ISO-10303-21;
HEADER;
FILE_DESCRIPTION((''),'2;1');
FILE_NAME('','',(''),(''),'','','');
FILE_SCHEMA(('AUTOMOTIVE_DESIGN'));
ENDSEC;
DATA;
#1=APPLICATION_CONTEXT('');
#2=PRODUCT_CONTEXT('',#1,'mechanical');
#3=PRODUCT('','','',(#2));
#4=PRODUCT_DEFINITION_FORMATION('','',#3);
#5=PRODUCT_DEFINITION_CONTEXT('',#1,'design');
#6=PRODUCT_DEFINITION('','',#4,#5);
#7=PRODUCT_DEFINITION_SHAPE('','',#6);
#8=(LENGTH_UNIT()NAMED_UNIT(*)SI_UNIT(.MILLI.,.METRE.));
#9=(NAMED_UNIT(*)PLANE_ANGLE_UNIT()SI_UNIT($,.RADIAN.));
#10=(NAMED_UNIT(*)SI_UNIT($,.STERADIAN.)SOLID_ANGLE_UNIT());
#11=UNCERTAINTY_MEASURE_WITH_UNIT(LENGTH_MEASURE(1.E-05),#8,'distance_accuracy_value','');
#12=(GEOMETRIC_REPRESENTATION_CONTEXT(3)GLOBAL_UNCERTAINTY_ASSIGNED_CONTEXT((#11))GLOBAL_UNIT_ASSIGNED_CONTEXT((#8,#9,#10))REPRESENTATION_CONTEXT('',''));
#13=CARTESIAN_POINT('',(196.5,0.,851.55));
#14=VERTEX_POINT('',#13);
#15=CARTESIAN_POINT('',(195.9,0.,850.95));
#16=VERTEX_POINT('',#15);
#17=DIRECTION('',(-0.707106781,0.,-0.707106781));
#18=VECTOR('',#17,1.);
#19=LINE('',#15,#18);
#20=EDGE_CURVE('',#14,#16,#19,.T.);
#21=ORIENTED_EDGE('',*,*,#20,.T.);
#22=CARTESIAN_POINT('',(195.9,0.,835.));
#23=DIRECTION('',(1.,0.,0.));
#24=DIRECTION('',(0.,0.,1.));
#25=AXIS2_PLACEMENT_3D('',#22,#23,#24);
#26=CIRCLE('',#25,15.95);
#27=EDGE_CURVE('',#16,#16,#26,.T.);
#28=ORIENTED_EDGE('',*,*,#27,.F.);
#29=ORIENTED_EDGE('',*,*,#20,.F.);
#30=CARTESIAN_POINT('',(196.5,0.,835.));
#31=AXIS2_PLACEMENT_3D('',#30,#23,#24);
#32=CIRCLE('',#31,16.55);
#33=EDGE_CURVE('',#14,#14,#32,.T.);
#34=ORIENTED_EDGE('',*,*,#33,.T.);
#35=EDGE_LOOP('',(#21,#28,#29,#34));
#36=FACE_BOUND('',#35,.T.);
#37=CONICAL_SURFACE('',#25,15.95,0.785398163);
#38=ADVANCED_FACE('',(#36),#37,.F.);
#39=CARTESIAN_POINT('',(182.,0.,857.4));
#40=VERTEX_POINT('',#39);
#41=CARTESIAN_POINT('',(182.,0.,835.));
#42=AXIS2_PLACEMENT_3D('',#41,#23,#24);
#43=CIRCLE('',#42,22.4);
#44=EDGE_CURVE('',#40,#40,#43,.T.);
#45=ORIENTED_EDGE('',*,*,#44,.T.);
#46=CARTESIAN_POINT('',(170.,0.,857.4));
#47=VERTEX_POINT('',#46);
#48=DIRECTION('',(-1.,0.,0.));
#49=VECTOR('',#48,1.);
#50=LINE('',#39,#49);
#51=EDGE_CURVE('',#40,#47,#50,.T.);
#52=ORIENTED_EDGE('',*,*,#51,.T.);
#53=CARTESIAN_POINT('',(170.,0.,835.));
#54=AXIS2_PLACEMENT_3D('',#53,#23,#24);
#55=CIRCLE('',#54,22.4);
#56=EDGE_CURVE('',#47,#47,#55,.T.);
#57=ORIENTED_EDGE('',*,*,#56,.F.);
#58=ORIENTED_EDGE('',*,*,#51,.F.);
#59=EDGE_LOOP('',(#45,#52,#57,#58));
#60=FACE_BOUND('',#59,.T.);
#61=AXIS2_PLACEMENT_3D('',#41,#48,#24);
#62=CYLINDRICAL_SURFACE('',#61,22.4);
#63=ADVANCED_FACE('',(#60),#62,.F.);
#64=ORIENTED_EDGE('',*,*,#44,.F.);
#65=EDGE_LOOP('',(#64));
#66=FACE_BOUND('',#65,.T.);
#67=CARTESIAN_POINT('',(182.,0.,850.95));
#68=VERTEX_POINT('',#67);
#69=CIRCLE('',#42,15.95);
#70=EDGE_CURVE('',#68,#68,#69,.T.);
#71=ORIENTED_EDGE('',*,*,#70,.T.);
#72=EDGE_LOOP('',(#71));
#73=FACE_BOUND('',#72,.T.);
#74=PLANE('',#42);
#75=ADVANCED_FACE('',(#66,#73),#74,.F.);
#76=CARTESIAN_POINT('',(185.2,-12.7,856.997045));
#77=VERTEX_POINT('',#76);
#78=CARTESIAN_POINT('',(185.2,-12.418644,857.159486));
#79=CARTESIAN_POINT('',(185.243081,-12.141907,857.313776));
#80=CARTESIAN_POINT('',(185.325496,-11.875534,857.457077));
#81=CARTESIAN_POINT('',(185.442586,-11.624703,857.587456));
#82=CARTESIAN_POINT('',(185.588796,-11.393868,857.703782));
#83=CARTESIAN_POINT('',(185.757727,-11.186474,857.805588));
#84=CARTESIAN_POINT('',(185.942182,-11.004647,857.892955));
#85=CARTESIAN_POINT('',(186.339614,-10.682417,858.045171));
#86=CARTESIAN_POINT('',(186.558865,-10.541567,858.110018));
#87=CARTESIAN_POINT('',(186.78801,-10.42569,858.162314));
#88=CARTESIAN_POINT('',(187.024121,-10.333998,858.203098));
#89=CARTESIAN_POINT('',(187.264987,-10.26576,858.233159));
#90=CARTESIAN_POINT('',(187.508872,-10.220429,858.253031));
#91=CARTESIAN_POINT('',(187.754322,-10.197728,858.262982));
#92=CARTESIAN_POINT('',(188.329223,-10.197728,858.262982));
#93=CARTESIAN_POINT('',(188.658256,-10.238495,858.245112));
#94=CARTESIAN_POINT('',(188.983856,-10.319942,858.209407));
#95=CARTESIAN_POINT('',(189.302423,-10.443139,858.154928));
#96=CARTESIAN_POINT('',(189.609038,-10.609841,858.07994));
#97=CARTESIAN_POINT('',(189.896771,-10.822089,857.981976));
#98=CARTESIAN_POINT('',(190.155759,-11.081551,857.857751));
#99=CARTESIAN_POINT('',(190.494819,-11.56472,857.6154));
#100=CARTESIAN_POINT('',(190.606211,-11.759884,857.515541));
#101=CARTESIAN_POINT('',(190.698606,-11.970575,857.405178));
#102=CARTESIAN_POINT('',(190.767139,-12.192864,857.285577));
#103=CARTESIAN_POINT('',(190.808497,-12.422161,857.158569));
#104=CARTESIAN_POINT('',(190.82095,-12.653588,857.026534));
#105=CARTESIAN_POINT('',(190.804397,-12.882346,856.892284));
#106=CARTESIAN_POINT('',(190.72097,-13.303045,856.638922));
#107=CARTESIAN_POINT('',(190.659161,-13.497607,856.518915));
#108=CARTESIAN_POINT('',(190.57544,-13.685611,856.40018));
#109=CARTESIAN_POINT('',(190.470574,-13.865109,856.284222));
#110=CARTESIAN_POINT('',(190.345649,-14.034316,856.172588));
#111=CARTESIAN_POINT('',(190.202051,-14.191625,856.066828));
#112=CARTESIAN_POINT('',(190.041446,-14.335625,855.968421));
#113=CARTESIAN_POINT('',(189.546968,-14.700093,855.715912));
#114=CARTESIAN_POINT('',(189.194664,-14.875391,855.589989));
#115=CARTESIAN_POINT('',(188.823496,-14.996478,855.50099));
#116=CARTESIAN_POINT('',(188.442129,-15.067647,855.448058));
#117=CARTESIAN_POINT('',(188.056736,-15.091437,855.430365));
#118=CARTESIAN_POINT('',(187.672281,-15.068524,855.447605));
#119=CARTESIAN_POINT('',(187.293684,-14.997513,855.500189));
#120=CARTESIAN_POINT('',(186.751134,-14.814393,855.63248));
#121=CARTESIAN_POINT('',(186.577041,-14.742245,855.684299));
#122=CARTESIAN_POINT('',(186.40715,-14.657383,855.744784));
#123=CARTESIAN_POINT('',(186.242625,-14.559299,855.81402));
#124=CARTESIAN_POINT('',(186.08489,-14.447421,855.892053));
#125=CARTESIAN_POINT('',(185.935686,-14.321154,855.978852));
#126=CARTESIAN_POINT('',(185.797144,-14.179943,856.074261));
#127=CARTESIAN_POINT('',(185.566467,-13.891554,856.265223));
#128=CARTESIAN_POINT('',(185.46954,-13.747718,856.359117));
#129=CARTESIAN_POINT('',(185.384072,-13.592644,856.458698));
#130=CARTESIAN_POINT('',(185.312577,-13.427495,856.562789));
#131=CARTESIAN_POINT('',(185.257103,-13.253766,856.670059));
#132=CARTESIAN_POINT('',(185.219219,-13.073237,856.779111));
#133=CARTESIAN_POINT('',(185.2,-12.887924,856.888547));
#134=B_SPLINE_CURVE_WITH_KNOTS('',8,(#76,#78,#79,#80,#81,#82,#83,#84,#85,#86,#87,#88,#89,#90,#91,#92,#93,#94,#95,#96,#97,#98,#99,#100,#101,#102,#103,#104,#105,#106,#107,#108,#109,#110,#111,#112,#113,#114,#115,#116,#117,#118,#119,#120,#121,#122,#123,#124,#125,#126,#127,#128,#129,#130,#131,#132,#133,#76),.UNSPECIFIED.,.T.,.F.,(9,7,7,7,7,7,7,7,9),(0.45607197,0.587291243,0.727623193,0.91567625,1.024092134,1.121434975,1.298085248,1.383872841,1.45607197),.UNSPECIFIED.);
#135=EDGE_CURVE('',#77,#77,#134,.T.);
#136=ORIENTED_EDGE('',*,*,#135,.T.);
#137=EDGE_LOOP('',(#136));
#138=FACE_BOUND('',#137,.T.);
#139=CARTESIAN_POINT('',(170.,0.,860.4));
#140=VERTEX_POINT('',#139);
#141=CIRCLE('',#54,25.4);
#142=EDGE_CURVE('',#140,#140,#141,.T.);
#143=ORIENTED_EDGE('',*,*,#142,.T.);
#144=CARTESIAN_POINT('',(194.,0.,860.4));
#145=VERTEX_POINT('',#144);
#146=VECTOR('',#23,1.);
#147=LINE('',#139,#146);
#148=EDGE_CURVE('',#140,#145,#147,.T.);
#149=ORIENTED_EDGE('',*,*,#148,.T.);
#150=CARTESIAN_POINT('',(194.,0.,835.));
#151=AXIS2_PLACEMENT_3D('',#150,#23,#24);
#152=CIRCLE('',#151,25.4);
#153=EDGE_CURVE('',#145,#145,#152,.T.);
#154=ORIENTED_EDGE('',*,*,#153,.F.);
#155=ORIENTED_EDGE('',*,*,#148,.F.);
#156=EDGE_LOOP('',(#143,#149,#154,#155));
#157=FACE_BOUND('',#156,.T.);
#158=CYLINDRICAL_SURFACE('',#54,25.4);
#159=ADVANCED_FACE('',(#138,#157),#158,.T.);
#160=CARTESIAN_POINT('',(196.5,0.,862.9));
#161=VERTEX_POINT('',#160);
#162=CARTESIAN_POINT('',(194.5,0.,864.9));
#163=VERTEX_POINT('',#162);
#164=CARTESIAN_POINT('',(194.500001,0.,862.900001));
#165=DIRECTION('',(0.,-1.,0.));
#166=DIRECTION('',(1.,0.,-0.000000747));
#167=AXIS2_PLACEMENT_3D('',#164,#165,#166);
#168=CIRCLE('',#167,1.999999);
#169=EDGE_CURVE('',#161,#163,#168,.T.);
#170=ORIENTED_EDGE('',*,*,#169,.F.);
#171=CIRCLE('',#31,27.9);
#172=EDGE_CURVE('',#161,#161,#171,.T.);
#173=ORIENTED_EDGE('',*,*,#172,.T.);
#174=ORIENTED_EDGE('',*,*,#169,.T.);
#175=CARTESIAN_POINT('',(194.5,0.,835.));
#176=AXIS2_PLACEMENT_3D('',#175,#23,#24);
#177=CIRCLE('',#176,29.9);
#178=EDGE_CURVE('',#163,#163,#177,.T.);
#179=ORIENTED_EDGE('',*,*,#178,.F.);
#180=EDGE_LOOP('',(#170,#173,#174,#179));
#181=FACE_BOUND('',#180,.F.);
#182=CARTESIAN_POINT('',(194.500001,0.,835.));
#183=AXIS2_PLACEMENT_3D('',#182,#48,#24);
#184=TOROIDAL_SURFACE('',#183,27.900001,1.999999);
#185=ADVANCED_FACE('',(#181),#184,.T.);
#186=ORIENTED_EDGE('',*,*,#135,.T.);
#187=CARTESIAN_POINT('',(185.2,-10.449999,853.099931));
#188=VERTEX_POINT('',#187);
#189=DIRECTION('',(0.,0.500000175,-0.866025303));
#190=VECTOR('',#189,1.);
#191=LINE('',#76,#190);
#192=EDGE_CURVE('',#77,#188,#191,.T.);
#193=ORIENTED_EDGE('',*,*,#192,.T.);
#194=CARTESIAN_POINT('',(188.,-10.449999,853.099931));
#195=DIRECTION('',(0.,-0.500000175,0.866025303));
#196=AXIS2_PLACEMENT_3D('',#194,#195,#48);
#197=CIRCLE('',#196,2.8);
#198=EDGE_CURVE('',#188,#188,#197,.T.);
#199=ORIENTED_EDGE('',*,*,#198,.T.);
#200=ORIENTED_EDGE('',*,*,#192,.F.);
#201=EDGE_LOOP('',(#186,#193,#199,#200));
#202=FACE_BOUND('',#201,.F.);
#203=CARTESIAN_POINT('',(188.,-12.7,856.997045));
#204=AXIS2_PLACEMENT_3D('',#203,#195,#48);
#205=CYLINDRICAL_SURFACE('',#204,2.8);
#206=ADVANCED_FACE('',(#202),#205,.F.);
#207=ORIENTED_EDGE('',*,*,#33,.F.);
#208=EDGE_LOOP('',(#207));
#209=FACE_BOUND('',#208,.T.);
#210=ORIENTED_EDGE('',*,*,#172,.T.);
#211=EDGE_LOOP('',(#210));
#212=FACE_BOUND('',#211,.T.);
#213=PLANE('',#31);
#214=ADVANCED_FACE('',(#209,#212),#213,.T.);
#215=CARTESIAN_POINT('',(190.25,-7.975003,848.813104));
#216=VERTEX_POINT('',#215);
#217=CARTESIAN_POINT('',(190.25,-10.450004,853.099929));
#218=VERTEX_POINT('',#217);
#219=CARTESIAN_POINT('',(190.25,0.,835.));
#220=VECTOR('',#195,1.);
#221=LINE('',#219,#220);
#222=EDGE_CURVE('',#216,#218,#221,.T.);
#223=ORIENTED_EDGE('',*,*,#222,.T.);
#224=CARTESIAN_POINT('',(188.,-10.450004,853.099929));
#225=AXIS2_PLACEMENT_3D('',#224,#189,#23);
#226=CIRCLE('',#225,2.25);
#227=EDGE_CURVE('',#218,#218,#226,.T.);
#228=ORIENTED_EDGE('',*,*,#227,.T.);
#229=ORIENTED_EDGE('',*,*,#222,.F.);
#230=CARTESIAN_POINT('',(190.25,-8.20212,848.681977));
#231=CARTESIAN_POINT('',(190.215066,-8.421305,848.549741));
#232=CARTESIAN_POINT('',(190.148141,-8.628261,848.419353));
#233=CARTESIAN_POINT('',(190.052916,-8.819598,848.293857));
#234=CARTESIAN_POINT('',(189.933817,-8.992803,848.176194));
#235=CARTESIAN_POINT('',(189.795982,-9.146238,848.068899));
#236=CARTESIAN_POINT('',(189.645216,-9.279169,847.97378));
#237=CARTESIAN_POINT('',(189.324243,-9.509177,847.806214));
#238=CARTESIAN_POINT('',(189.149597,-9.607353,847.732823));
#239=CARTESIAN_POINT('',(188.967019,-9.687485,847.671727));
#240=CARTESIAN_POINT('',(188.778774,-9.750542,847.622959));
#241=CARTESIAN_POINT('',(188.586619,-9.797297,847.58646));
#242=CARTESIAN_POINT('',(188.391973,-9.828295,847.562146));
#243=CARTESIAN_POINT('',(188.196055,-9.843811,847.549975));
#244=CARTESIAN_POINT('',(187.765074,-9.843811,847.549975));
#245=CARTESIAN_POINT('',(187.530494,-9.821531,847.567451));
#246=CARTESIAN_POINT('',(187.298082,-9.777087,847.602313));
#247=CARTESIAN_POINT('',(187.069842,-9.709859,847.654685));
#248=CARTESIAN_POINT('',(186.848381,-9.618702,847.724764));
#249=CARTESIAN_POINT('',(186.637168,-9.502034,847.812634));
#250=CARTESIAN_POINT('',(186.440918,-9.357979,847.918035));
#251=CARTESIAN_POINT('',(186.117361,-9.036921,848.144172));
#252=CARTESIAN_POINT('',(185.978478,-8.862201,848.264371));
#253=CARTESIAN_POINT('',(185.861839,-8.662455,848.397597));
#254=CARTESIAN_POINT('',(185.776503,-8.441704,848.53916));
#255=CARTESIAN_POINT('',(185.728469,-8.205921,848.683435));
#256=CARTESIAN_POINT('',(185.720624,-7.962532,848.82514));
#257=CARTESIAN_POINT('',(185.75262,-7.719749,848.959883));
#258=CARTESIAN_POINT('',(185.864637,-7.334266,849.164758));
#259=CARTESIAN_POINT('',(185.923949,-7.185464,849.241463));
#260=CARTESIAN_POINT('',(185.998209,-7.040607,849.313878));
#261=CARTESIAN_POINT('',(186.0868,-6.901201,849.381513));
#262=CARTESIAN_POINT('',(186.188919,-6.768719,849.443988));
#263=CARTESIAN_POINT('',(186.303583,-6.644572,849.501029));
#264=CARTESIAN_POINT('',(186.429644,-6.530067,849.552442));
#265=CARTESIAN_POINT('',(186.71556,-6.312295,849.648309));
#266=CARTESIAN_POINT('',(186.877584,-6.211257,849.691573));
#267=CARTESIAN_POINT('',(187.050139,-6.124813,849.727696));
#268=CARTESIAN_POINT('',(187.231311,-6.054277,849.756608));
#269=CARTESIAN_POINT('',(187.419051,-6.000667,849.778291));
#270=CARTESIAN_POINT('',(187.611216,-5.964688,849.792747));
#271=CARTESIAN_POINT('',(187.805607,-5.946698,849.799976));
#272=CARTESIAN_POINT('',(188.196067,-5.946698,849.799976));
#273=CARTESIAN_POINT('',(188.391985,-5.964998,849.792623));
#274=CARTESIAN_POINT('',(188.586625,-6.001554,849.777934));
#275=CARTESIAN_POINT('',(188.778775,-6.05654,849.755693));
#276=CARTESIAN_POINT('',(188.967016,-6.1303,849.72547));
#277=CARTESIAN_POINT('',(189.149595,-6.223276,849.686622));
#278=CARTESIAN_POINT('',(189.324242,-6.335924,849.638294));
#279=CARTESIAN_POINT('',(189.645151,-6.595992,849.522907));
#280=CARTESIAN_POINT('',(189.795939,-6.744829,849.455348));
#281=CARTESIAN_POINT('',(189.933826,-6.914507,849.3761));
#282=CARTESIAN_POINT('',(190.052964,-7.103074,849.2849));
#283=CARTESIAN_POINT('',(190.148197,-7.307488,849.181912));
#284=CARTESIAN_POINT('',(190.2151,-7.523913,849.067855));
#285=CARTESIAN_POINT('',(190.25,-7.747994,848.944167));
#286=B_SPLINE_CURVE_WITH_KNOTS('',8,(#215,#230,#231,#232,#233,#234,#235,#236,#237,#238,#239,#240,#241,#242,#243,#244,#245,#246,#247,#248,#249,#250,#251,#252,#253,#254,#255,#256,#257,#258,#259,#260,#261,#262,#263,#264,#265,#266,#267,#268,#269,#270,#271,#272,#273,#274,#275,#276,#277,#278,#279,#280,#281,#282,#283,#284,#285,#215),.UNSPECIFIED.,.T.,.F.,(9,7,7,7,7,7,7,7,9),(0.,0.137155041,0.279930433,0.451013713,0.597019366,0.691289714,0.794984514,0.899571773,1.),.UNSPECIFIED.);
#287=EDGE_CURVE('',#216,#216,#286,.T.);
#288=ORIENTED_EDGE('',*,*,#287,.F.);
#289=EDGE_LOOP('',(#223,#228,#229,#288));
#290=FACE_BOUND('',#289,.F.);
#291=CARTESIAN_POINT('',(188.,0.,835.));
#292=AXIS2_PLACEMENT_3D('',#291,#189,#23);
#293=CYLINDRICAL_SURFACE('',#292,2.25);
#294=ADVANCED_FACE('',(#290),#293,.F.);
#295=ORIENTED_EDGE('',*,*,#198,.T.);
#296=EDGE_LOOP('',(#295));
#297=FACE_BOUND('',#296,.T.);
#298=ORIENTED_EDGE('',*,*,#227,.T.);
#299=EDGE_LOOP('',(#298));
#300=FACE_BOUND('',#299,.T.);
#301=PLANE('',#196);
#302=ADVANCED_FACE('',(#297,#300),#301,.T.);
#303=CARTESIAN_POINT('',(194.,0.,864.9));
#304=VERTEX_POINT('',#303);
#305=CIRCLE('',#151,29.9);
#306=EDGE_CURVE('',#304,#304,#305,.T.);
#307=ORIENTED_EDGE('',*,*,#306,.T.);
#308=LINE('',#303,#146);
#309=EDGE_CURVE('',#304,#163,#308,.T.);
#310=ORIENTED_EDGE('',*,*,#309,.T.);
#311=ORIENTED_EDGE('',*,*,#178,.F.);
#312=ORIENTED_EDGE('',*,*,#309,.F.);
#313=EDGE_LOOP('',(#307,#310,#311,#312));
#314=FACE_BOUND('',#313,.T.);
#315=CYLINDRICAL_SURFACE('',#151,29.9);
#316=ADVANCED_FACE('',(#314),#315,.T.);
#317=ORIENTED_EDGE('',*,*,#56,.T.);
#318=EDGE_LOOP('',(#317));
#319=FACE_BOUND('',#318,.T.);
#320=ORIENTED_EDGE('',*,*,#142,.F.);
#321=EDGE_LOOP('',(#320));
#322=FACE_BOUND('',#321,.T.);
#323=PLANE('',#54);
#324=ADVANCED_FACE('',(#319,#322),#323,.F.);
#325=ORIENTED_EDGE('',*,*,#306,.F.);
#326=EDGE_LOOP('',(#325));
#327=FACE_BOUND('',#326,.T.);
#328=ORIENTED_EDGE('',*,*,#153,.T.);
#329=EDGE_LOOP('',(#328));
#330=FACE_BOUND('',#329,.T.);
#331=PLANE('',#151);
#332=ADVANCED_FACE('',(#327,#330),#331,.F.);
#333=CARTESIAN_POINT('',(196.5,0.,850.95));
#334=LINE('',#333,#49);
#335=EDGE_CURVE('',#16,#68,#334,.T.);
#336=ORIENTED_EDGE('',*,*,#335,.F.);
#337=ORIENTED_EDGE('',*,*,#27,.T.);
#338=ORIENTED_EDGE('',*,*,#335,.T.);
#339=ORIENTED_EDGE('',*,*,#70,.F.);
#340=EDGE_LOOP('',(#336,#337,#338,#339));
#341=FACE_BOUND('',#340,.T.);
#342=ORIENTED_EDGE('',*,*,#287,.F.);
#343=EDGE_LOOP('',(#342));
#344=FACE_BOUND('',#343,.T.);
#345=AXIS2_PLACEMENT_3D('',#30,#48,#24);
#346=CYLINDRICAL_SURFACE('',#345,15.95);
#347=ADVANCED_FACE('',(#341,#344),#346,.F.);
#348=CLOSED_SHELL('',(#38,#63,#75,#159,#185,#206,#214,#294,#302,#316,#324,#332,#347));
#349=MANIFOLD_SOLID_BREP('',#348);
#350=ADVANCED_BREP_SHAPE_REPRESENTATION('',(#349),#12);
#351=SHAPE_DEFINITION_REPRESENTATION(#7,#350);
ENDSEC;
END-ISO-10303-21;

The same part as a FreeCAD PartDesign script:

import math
import FreeCAD as App
import Part
import Sketcher

V = App.Vector
Q = App.Units.Quantity


def edges_at(feature, points):
    """Names of the edges that pass closest to the given points."""
    edges = feature.Shape.Edges
    near = lambda p: min(range(len(edges)), key=lambda i: edges[i].distToShape(Part.Vertex(*p))[0])
    return sorted({f"Edge{near(p) + 1}" for p in points})

doc = App.newDocument("Part")
body = doc.addObject("PartDesign::Body", "Body")

sketch1 = body.newObject("Sketcher::SketchObject", "Sketch")
sketch1.AttachmentSupport = (doc.getObject("XZ_Plane"), [""])
sketch1.MapMode = "FlatFace"
sketch1.addGeometry([
    Part.LineSegment(V(0, 29.9, 0), V(0, 25.4, 0)),
    Part.LineSegment(V(0, 25.4, 0), V(-24, 25.4, 0)),
    Part.LineSegment(V(-24, 25.4, 0), V(-24, 22.4, 0)),
    Part.LineSegment(V(-24, 22.4, 0), V(-12, 22.4, 0)),
    Part.LineSegment(V(-12, 22.4, 0), V(-12, 15.9, 0)),
    Part.LineSegment(V(-12, 15.9, 0), V(2.5, 15.9, 0)),
    Part.LineSegment(V(2.5, 15.9, 0), V(2.5, 27.9, 0)),
    Part.ArcOfCircle(Part.Circle(V(0.5, 27.9, 0), V(0, 0, 1), 2), math.radians(0), math.radians(90)),
    Part.LineSegment(V(0.5, 29.9, 0), V(0, 29.9, 0)),
], False)
sketch1.addConstraint([
    Sketcher.Constraint("Coincident", 0, 2, 1, 1),
    Sketcher.Constraint("Coincident", 1, 2, 2, 1),
    Sketcher.Constraint("Coincident", 2, 2, 3, 1),
    Sketcher.Constraint("Coincident", 3, 2, 4, 1),
    Sketcher.Constraint("Coincident", 4, 2, 5, 1),
    Sketcher.Constraint("Coincident", 5, 2, 6, 1),
    Sketcher.Constraint("Tangent", 6, 2, 7, 1),
    Sketcher.Constraint("Tangent", 7, 2, 8, 1),
    Sketcher.Constraint("Coincident", 8, 2, 0, 1),
    Sketcher.Constraint("Vertical", 0),
    Sketcher.Constraint("Horizontal", 1),
    Sketcher.Constraint("Vertical", 2),
    Sketcher.Constraint("Horizontal", 3),
    Sketcher.Constraint("Vertical", 4),
    Sketcher.Constraint("Horizontal", 5),
    Sketcher.Constraint("Vertical", 6),
    Sketcher.Constraint("Horizontal", 8),
    Sketcher.Constraint("PointOnObject", 0, 2, -2),
    Sketcher.Constraint("Radius", 7, Q("1.999999 mm")),
    Sketcher.Constraint("DistanceX", 1, 2, 1, 1, Q("24 mm")),
    Sketcher.Constraint("DistanceX", 3, 1, 3, 2, Q("12 mm")),
    Sketcher.Constraint("DistanceY", 2, 2, 2, 1, Q("3 mm")),
    Sketcher.Constraint("DistanceX", 5, 1, 5, 2, Q("14.5 mm")),
    Sketcher.Constraint("DistanceY", 0, 2, 0, 1, Q("4.5 mm")),
    Sketcher.Constraint("DistanceY", 4, 2, 4, 1, Q("6.45 mm")),
    Sketcher.Constraint("DistanceY", -1, 1, 7, 3, Q("27.900001 mm")),
])
revolution = body.newObject("PartDesign::Revolution", "Revolution")
revolution.Profile = sketch1
revolution.ReferenceAxis = (sketch1, ["H_Axis"])
revolution.Angle = 360

sketch2 = body.newObject("Sketcher::SketchObject", "Sketch001")
sketch2.Placement = App.Placement(V(-6, 0, 0), App.Rotation(V(1, 0, 0), V(0, -0.866025303, -0.500000175), V(0, 0.500000175, -0.866025303), "ZXY"))
sketch2.addGeometry(Part.Circle(V(0, 0, 0), V(0, 0, 1), 2.2), False)
sketch2.addConstraint([
    Sketcher.Constraint("Coincident", 0, 3, -1, 1),
    Sketcher.Constraint("Diameter", 0, Q("4.5 mm")),
])
pocket1 = body.newObject("PartDesign::Pocket", "Pocket")
pocket1.Profile = sketch2
pocket1.Type = "ThroughAll"

sketch3 = body.newObject("Sketcher::SketchObject", "Sketch002")
sketch3.Placement = App.Placement(V(-6, -12.7, 21.997045), App.Rotation(V(-1, 0, 0), V(0, -0.866025303, -0.500000175), V(0, -0.500000175, 0.866025303), "ZXY"))
sketch3.addGeometry(Part.Circle(V(0, 0, 0), V(0, 0, 1), 2.8), False)
sketch3.addConstraint([
    Sketcher.Constraint("Coincident", 0, 3, -1, 1),
    Sketcher.Constraint("Diameter", 0, Q("5.6 mm")),
])
pocket2 = body.newObject("PartDesign::Pocket", "Pocket001")
pocket2.Profile = sketch3
pocket2.Length = 4.5
doc.recompute()

chamfer = body.newObject("PartDesign::Chamfer", "Chamfer")
chamfer.Base = (pocket2, edges_at(pocket2, [(2.5, 0, -15.95)]))
chamfer.Size = 0.6
body2 = doc.addObject("PartDesign::Body", "Body001")
doc.recompute()

body.Placement = App.Placement(V(194, 0, 835), App.Rotation(V(0, 0, 1), 0))
boolean = body2.newObject("PartDesign::Boolean", "Boolean")
boolean.Type = "Fuse"
boolean.addObjects([body])

doc.recompute()
